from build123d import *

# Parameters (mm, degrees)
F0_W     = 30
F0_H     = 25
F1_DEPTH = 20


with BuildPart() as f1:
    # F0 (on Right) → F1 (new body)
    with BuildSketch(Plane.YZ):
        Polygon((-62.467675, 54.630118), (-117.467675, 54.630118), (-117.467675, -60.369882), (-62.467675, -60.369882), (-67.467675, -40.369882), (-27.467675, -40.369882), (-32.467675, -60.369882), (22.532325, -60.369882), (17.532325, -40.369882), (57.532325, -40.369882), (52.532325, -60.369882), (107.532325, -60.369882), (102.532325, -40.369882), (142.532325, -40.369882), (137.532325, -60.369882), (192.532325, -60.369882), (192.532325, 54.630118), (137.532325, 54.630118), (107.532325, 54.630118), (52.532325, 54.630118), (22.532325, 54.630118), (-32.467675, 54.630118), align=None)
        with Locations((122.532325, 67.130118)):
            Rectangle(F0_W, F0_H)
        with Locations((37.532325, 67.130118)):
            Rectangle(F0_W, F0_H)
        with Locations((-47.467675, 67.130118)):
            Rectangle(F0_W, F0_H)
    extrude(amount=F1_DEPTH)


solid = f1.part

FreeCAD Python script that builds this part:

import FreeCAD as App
import Part
import Sketcher
Q = App.Units.Quantity

doc = App.newDocument("Part")
body = doc.addObject("PartDesign::Body", "Body")

sketch1 = body.newObject("Sketcher::SketchObject", "Sketch")
sketch1.AttachmentSupport = (doc.getObject("YZ_Plane"), [""])
sketch1.MapMode = "FlatFace"
sketch1.addGeometry([
    Part.LineSegment(App.Vector(-117, 55, 0), App.Vector(-117, -60, 0)),
    Part.LineSegment(App.Vector(-117, -60, 0), App.Vector(-62, -60, 0)),
    Part.LineSegment(App.Vector(-62, -60, 0), App.Vector(-67, -40, 0)),
    Part.LineSegment(App.Vector(-67, -40, 0), App.Vector(-27, -40, 0)),
    Part.LineSegment(App.Vector(-27, -40, 0), App.Vector(-32, -60, 0)),
    Part.LineSegment(App.Vector(-32, -60, 0), App.Vector(23, -60, 0)),
    Part.LineSegment(App.Vector(23, -60, 0), App.Vector(18, -40, 0)),
    Part.LineSegment(App.Vector(18, -40, 0), App.Vector(58, -40, 0)),
    Part.LineSegment(App.Vector(58, -40, 0), App.Vector(53, -60, 0)),
    Part.LineSegment(App.Vector(53, -60, 0), App.Vector(108, -60, 0)),
    Part.LineSegment(App.Vector(108, -60, 0), App.Vector(103, -40, 0)),
    Part.LineSegment(App.Vector(103, -40, 0), App.Vector(143, -40, 0)),
    Part.LineSegment(App.Vector(143, -40, 0), App.Vector(138, -60, 0)),
    Part.LineSegment(App.Vector(138, -60, 0), App.Vector(193, -60, 0)),
    Part.LineSegment(App.Vector(193, -60, 0), App.Vector(193, 55, 0)),
    Part.LineSegment(App.Vector(193, 55, 0), App.Vector(138, 55, 0)),
    Part.LineSegment(App.Vector(138, 55, 0), App.Vector(138, 80, 0)),
    Part.LineSegment(App.Vector(138, 80, 0), App.Vector(108, 80, 0)),
    Part.LineSegment(App.Vector(108, 80, 0), App.Vector(108, 55, 0)),
    Part.LineSegment(App.Vector(108, 55, 0), App.Vector(53, 55, 0)),
    Part.LineSegment(App.Vector(53, 55, 0), App.Vector(53, 80, 0)),
    Part.LineSegment(App.Vector(53, 80, 0), App.Vector(23, 80, 0)),
    Part.LineSegment(App.Vector(23, 80, 0), App.Vector(23, 55, 0)),
    Part.LineSegment(App.Vector(23, 55, 0), App.Vector(-32, 55, 0)),
    Part.LineSegment(App.Vector(-32, 55, 0), App.Vector(-32, 80, 0)),
    Part.LineSegment(App.Vector(-32, 80, 0), App.Vector(-62, 80, 0)),
    Part.LineSegment(App.Vector(-62, 80, 0), App.Vector(-62, 55, 0)),
    Part.LineSegment(App.Vector(-62, 55, 0), App.Vector(-117, 55, 0)),
], False)
sketch1.addConstraint([
    Sketcher.Constraint("Coincident", 0, 2, 1, 1),
    Sketcher.Constraint("Coincident", 1, 2, 2, 1),
    Sketcher.Constraint("Coincident", 2, 2, 3, 1),
    Sketcher.Constraint("Coincident", 3, 2, 4, 1),
    Sketcher.Constraint("Coincident", 4, 2, 5, 1),
    Sketcher.Constraint("Coincident", 5, 2, 6, 1),
    Sketcher.Constraint("Coincident", 6, 2, 7, 1),
    Sketcher.Constraint("Coincident", 7, 2, 8, 1),
    Sketcher.Constraint("Coincident", 8, 2, 9, 1),
    Sketcher.Constraint("Coincident", 9, 2, 10, 1),
    Sketcher.Constraint("Coincident", 10, 2, 11, 1),
    Sketcher.Constraint("Coincident", 11, 2, 12, 1),
    Sketcher.Constraint("Coincident", 12, 2, 13, 1),
    Sketcher.Constraint("Coincident", 13, 2, 14, 1),
    Sketcher.Constraint("Coincident", 14, 2, 15, 1),
    Sketcher.Constraint("Coincident", 15, 2, 16, 1),
    Sketcher.Constraint("Coincident", 16, 2, 17, 1),
    Sketcher.Constraint("Coincident", 17, 2, 18, 1),
    Sketcher.Constraint("Coincident", 18, 2, 19, 1),
    Sketcher.Constraint("Coincident", 19, 2, 20, 1),
    Sketcher.Constraint("Coincident", 20, 2, 21, 1),
    Sketcher.Constraint("Coincident", 21, 2, 22, 1),
    Sketcher.Constraint("Coincident", 22, 2, 23, 1),
    Sketcher.Constraint("Coincident", 23, 2, 24, 1),
    Sketcher.Constraint("Coincident", 24, 2, 25, 1),
    Sketcher.Constraint("Coincident", 25, 2, 26, 1),
    Sketcher.Constraint("Coincident", 26, 2, 27, 1),
    Sketcher.Constraint("Coincident", 27, 2, 0, 1),
    Sketcher.Constraint("Vertical", 0),
    Sketcher.Constraint("Horizontal", 1),
    Sketcher.Constraint("Horizontal", 3),
    Sketcher.Constraint("Horizontal", 5),
    Sketcher.Constraint("Horizontal", 7),
    Sketcher.Constraint("Horizontal", 9),
    Sketcher.Constraint("Horizontal", 11),
    Sketcher.Constraint("Horizontal", 13),
    Sketcher.Constraint("Vertical", 14),
    Sketcher.Constraint("Horizontal", 15),
    Sketcher.Constraint("Vertical", 16),
    Sketcher.Constraint("Horizontal", 17),
    Sketcher.Constraint("Vertical", 18),
    Sketcher.Constraint("Horizontal", 19),
    Sketcher.Constraint("Vertical", 20),
    Sketcher.Constraint("Horizontal", 21),
    Sketcher.Constraint("Vertical", 22),
    Sketcher.Constraint("Horizontal", 23),
    Sketcher.Constraint("Vertical", 24),
    Sketcher.Constraint("Horizontal", 25),
    Sketcher.Constraint("Vertical", 26),
    Sketcher.Constraint("Horizontal", 27),
    Sketcher.Constraint("Parallel", 2, 6),
    Sketcher.Constraint("Parallel", 4, 8),
    Sketcher.Constraint("Parallel", 6, 10),
    Sketcher.Constraint("Parallel", 8, 12),
    Sketcher.Constraint("Horizontal", 1, 2, 4, 2),
    Sketcher.Constraint("Horizontal", 3, 2, 6, 2),
    Sketcher.Constraint("Horizontal", 5, 2, 8, 2),
    Sketcher.Constraint("Horizontal", 7, 2, 10, 2),
    Sketcher.Constraint("Horizontal", 9, 2, 12, 2),
    Sketcher.Constraint("Horizontal", 15, 2, 18, 2),
    Sketcher.Constraint("Horizontal", 17, 2, 20, 2),
    Sketcher.Constraint("Horizontal", 19, 2, 22, 2),
    Sketcher.Constraint("Horizontal", 21, 2, 24, 2),
    Sketcher.Constraint("Horizontal", 23, 2, 26, 2),
    Sketcher.Constraint("Vertical", 12, 2, 15, 2),
    Sketcher.Constraint("Vertical", 9, 2, 17, 2),
    Sketcher.Constraint("Vertical", 8, 2, 19, 2),
    Sketcher.Constraint("Vertical", 5, 2, 21, 2),
    Sketcher.Constraint("Vertical", 4, 2, 23, 2),
    Sketcher.Constraint("Vertical", 1, 2, 25, 2),
    Sketcher.Constraint("Equal", 1, 5),
    Sketcher.Constraint("Equal", 3, 7),
    Sketcher.Constraint("Equal", 5, 9),
    Sketcher.Constraint("Equal", 7, 11),
    Sketcher.Constraint("Equal", 9, 13),
    Sketcher.Constraint("Equal", 2, 4),
    Sketcher.Constraint("DistanceX", 1, 1, 1, 2, Q("55 mm")),
    Sketcher.Constraint("DistanceX", 3, 1, 3, 2, Q("40 mm")),
    Sketcher.Constraint("DistanceX", 17, 2, 17, 1, Q("30 mm")),
    Sketcher.Constraint("DistanceY", 0, 2, 0, 1, Q("115 mm")),
    Sketcher.Constraint("DistanceY", 16, 1, 16, 2, Q("25 mm")),
    Sketcher.Constraint("DistanceY", 1, 2, 2, 2, Q("20 mm")),
    Sketcher.Constraint("DistanceY", 0, 2, -1, 1, Q("60.369882 mm")),
    Sketcher.Constraint("DistanceX", 0, 2, -1, 1, Q("117.467675 mm")),
])
pad1 = body.newObject("PartDesign::Pad", "Pad")
pad1.Profile = sketch1
pad1.Length = 20

doc.recompute()
